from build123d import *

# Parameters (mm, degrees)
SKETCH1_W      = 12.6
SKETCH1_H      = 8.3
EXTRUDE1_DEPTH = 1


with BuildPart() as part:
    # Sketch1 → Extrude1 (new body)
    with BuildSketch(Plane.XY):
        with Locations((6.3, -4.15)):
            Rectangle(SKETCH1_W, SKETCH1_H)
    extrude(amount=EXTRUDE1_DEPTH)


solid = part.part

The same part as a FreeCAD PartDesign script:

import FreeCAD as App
import Part
import Sketcher


def add_polygon(sketch, points):
    """Adds a closed chain of lines whose ends are joined by coincident constraints."""
    first, n = sketch.GeometryCount, len(points)
    for a, b in zip(points, points[1:] + points[:1]):
        sketch.addGeometry(Part.LineSegment(App.Vector(*a, 0), App.Vector(*b, 0)), False)
    for i in range(n):
        sketch.addConstraint(Sketcher.Constraint("Coincident", first + i, 2, first + (i + 1) % n, 1))

doc = App.newDocument("Part")
body = doc.addObject("PartDesign::Body", "Body")

# Sketch on XY plane
sketch1 = body.newObject("Sketcher::SketchObject", "Sketch")
sketch1.AttachmentSupport = (doc.getObject("XY_Plane"), [""])
sketch1.MapMode = "FlatFace"
add_polygon(sketch1, [(0, 0), (0, -8), (13, -8), (13, 0)])  # lines 0-3
sketch1.addConstraint([
    Sketcher.Constraint("Vertical", 0),
    Sketcher.Constraint("Horizontal", 1),
    Sketcher.Constraint("Vertical", 2),
    Sketcher.Constraint("Horizontal", 3),
    Sketcher.Constraint("Coincident", 3, 2, -1, 1),
    Sketcher.Constraint("DistanceX", 1, 1, 1, 2, 12.6),
    Sketcher.Constraint("DistanceY", 0, 2, 0, 1, 8.3),
])
pad1 = body.newObject("PartDesign::Pad", "Pad")
pad1.Profile = sketch1
pad1.Length = 1

doc.recompute()
